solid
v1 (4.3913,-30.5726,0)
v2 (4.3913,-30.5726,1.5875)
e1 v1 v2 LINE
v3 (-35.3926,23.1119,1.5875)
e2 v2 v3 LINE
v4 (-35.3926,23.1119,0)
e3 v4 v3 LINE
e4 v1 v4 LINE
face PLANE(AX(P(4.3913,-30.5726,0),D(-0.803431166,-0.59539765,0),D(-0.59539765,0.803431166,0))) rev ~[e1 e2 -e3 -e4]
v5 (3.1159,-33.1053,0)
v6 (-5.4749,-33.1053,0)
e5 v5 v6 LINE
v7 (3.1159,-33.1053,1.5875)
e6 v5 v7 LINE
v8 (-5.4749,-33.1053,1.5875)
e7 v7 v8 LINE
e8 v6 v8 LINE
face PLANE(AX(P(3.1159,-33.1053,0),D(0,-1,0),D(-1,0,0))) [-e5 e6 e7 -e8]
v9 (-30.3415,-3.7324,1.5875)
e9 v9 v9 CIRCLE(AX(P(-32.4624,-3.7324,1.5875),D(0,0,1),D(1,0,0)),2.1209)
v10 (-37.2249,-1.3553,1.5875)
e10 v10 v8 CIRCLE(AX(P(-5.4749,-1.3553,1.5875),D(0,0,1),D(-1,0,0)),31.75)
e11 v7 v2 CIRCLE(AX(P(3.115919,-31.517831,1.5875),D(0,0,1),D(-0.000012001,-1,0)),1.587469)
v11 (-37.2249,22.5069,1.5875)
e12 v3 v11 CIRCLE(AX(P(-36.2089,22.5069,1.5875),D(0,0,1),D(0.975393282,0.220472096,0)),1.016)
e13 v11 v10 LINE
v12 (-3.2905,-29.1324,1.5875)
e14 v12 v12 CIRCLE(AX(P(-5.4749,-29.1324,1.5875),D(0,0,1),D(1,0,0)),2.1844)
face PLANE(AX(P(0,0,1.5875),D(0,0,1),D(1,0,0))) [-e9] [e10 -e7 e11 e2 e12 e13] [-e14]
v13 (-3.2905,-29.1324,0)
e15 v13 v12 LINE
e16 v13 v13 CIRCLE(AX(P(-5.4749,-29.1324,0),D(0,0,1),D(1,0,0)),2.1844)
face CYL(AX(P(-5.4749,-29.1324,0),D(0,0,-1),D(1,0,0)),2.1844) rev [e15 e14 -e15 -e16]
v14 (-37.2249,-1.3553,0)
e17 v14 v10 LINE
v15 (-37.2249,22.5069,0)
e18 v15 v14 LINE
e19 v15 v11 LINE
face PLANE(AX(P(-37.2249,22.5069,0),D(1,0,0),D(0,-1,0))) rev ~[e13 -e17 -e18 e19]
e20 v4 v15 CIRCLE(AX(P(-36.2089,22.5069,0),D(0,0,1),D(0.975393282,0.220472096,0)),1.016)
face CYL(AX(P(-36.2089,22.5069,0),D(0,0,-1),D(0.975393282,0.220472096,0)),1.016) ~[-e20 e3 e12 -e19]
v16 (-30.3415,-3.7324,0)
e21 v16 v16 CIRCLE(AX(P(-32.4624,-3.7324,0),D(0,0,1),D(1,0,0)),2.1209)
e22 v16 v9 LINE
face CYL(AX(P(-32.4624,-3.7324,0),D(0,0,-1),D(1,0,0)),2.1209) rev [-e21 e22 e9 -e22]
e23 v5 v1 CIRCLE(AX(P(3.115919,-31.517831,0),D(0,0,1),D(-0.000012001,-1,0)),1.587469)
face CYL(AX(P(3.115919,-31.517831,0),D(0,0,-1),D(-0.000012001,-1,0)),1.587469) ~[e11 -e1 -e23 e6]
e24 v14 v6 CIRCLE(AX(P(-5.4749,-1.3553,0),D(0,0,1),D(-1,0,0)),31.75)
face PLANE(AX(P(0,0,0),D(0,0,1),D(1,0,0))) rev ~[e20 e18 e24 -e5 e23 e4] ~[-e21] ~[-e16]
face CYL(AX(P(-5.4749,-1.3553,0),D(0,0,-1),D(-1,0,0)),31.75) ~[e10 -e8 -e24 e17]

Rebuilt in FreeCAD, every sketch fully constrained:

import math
import FreeCAD as App
import Part
import Sketcher
Q = App.Units.Quantity

doc = App.newDocument("Part")
body = doc.addObject("PartDesign::Body", "Body")

# Sketch on XY plane
sketch1 = body.newObject("Sketcher::SketchObject", "Sketch")
sketch1.AttachmentSupport = (doc.getObject("XY_Plane"), [""])
sketch1.MapMode = "FlatFace"
sketch1.addGeometry([
    Part.ArcOfCircle(Part.Circle(App.Vector(-36.2, 22.5, 0), App.Vector(0, 0, 1), 1), math.radians(37), math.radians(180)),  # 0
    Part.LineSegment(App.Vector(-37.2, 22.5, 0), App.Vector(-37.2, -1.4, 0)),  # 1
    Part.ArcOfCircle(Part.Circle(App.Vector(-5.5, -1.4, 0), App.Vector(0, 0, 1), 31.8), math.radians(180), math.radians(270)),  # 2
    Part.LineSegment(App.Vector(-5.5, -33.1, 0), App.Vector(3.1, -33.1, 0)),  # 3
    Part.ArcOfCircle(Part.Circle(App.Vector(3.1, -31.5, 0), App.Vector(0, 0, 1), 1.6), math.radians(-90), math.radians(37)),  # 4
    Part.LineSegment(App.Vector(4.4, -30.6, 0), App.Vector(-35.4, 23.1, 0)),  # 5
    Part.Circle(App.Vector(-5.5, -29.1, 0), App.Vector(0, 0, 1), 2.2),  # 6
    Part.Circle(App.Vector(-32.5, -3.7, 0), App.Vector(0, 0, 1), 2.1),  # 7
], False)
sketch1.addConstraint([
    Sketcher.Constraint("Tangent", 0, 2, 1, 1),
    Sketcher.Constraint("Tangent", 1, 2, 2, 1),
    Sketcher.Constraint("Tangent", 2, 2, 3, 1),
    Sketcher.Constraint("Tangent", 3, 2, 4, 1),
    Sketcher.Constraint("Tangent", 4, 2, 5, 1),
    Sketcher.Constraint("Tangent", 5, 2, 0, 1),
    Sketcher.Constraint("Vertical", 1),
    Sketcher.Constraint("Horizontal", 3),
    Sketcher.Constraint("Vertical", 2, 3, 6, 3),
    Sketcher.Constraint("Radius", 0, Q("0.04 in")),
    Sketcher.Constraint("Radius", 2, Q("1.25 in")),
    Sketcher.Constraint("Radius", 4, Q("0.0625 in")),
    Sketcher.Constraint("Diameter", 6, Q("0.172 in")),
    Sketcher.Constraint("Diameter", 7, Q("0.167 in")),
    Sketcher.Constraint("DistanceY", 6, 3, 7, 3, Q("1 in")),
    Sketcher.Constraint("Angle", 5, Q("126.541 deg")),
    Sketcher.Constraint("DistanceX", 7, 3, 2, 3, Q("1.0625 in")),
    Sketcher.Constraint("DistanceX", 3, 1, 3, 2, Q("8.5908 mm")),
    Sketcher.Constraint("DistanceY", -1, 1, 0, 3, Q("0.8861 in")),
    Sketcher.Constraint("DistanceX", 5, 2, -1, 1, Q("1.3934 in")),
    Sketcher.Constraint("DistanceY", 4, 2, 6, 3, Q("0.0567 in")),
])
pad1 = body.newObject("PartDesign::Pad", "Pad")
pad1.Profile = sketch1
pad1.Length = Q("0.0625 in")

doc.recompute()
